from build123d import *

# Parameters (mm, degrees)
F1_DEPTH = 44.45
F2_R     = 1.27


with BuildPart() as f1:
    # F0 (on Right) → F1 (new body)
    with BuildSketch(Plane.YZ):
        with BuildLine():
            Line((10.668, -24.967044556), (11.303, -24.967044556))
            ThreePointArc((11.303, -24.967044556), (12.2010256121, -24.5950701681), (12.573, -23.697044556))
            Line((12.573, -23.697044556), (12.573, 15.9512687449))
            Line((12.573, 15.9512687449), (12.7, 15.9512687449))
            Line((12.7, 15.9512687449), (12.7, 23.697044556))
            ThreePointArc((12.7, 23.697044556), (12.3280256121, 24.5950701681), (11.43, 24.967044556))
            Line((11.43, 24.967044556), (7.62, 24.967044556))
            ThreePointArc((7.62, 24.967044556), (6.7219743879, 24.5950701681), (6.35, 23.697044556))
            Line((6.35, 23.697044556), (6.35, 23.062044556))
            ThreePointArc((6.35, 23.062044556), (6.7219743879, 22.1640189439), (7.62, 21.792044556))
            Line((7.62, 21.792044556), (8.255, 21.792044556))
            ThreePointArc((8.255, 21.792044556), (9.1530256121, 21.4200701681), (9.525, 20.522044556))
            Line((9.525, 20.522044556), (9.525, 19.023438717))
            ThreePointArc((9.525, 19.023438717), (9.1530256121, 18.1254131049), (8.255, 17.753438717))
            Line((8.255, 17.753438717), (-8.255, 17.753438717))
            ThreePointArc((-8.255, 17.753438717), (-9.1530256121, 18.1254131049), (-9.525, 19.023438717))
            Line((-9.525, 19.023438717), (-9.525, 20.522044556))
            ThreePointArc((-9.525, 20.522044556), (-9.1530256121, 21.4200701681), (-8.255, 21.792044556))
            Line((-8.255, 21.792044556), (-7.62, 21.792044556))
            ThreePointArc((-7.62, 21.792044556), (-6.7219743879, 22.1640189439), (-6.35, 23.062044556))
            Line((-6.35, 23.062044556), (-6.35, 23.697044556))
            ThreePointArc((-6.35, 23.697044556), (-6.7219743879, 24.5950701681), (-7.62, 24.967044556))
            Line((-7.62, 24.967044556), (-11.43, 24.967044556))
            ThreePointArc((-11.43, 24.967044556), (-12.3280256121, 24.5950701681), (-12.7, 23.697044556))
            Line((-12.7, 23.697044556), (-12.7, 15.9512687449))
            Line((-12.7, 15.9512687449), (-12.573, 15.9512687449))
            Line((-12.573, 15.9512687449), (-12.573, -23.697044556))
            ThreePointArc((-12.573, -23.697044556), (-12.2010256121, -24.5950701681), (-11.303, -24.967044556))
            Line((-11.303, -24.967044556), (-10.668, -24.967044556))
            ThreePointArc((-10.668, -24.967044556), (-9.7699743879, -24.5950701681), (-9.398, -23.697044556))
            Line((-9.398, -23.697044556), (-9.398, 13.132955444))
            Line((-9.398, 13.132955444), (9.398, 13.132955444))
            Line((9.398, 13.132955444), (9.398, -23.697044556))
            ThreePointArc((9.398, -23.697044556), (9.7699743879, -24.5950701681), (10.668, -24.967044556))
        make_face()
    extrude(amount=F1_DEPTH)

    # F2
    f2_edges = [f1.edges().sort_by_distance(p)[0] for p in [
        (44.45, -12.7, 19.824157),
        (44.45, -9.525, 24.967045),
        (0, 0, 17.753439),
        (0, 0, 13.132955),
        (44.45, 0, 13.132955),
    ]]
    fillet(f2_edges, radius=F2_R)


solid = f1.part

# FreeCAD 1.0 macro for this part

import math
import FreeCAD as App
import Part
import Sketcher
from FreeCAD import Vector
Q = App.Units.Quantity


def edges_at(feature, points):
    """Names of the edges that pass closest to the given points."""
    edges = feature.Shape.Edges
    near = lambda p: min(range(len(edges)), key=lambda i: edges[i].distToShape(Part.Vertex(*p))[0])
    return sorted({f"Edge{near(p) + 1}" for p in points})

doc = App.newDocument("Part")
body = doc.addObject("PartDesign::Body", "Body")

# Sketch on YZ plane
sketch1 = body.newObject("Sketcher::SketchObject", "Sketch")
sketch1.AttachmentSupport = (doc.getObject("YZ_Plane"), [""])
sketch1.MapMode = "FlatFace"
sketch1.addGeometry([
    Part.LineSegment(Vector(10.67, -24.97, 0), Vector(11.3, -24.97, 0)),  # 0
    Part.ArcOfCircle(Part.Circle(Vector(11.3, -23.7, 0), Vector(0, 0, 1), 1.27), math.radians(-90), math.radians(0)),  # 1
    Part.LineSegment(Vector(12.57, -23.7, 0), Vector(12.57, 15.95, 0)),  # 2
    Part.LineSegment(Vector(12.57, 15.95, 0), Vector(12.7, 15.95, 0)),  # 3
    Part.LineSegment(Vector(12.7, 15.95, 0), Vector(12.7, 23.7, 0)),  # 4
    Part.ArcOfCircle(Part.Circle(Vector(11.43, 23.7, 0), Vector(0, 0, 1), 1.27), math.radians(0), math.radians(90)),  # 5
    Part.LineSegment(Vector(11.43, 24.97, 0), Vector(7.62, 24.97, 0)),  # 6
    Part.ArcOfCircle(Part.Circle(Vector(7.62, 23.7, 0), Vector(0, 0, 1), 1.27), math.radians(90), math.radians(180)),  # 7
    Part.LineSegment(Vector(6.35, 23.7, 0), Vector(6.35, 23.06, 0)),  # 8
    Part.ArcOfCircle(Part.Circle(Vector(7.62, 23.06, 0), Vector(0, 0, 1), 1.27), math.radians(180), math.radians(270)),  # 9
    Part.LineSegment(Vector(7.62, 21.79, 0), Vector(8.26, 21.79, 0)),  # 10
    Part.ArcOfCircle(Part.Circle(Vector(8.26, 20.52, 0), Vector(0, 0, 1), 1.27), math.radians(0), math.radians(90)),  # 11
    Part.LineSegment(Vector(9.53, 20.52, 0), Vector(9.53, 19.02, 0)),  # 12
    Part.ArcOfCircle(Part.Circle(Vector(8.26, 19.02, 0), Vector(0, 0, 1), 1.27), math.radians(-90), math.radians(0)),  # 13
    Part.LineSegment(Vector(8.26, 17.75, 0), Vector(-8.26, 17.75, 0)),  # 14
    Part.ArcOfCircle(Part.Circle(Vector(-8.26, 19.02, 0), Vector(0, 0, 1), 1.27), math.radians(180), math.radians(270)),  # 15
    Part.LineSegment(Vector(-9.53, 19.02, 0), Vector(-9.53, 20.52, 0)),  # 16
    Part.ArcOfCircle(Part.Circle(Vector(-8.26, 20.52, 0), Vector(0, 0, 1), 1.27), math.radians(90), math.radians(180)),  # 17
    Part.LineSegment(Vector(-8.26, 21.79, 0), Vector(-7.62, 21.79, 0)),  # 18
    Part.ArcOfCircle(Part.Circle(Vector(-7.62, 23.06, 0), Vector(0, 0, 1), 1.27), math.radians(-90), math.radians(0)),  # 19
    Part.LineSegment(Vector(-6.35, 23.06, 0), Vector(-6.35, 23.7, 0)),  # 20
    Part.ArcOfCircle(Part.Circle(Vector(-7.62, 23.7, 0), Vector(0, 0, 1), 1.27), math.radians(0), math.radians(90)),  # 21
    Part.LineSegment(Vector(-7.62, 24.97, 0), Vector(-11.43, 24.97, 0)),  # 22
    Part.ArcOfCircle(Part.Circle(Vector(-11.43, 23.7, 0), Vector(0, 0, 1), 1.27), math.radians(90), math.radians(180)),  # 23
    Part.LineSegment(Vector(-12.7, 23.7, 0), Vector(-12.7, 15.95, 0)),  # 24
    Part.LineSegment(Vector(-12.7, 15.95, 0), Vector(-12.57, 15.95, 0)),  # 25
    Part.LineSegment(Vector(-12.57, 15.95, 0), Vector(-12.57, -23.7, 0)),  # 26
    Part.ArcOfCircle(Part.Circle(Vector(-11.3, -23.7, 0), Vector(0, 0, 1), 1.27), math.radians(180), math.radians(270)),  # 27
    Part.LineSegment(Vector(-11.3, -24.97, 0), Vector(-10.67, -24.97, 0)),  # 28
    Part.ArcOfCircle(Part.Circle(Vector(-10.67, -23.7, 0), Vector(0, 0, 1), 1.27), math.radians(-90), math.radians(0)),  # 29
    Part.LineSegment(Vector(-9.4, -23.7, 0), Vector(-9.4, 13.13, 0)),  # 30
    Part.LineSegment(Vector(-9.4, 13.13, 0), Vector(9.4, 13.13, 0)),  # 31
    Part.LineSegment(Vector(9.4, 13.13, 0), Vector(9.4, -23.7, 0)),  # 32
    Part.ArcOfCircle(Part.Circle(Vector(10.67, -23.7, 0), Vector(0, 0, 1), 1.27), math.radians(180), math.radians(270)),  # 33
], False)
sketch1.addConstraint([
    Sketcher.Constraint("Tangent", 0, 2, 1, 1),
    Sketcher.Constraint("Tangent", 1, 2, 2, 1),
    Sketcher.Constraint("Coincident", 2, 2, 3, 1),
    Sketcher.Constraint("Coincident", 3, 2, 4, 1),
    Sketcher.Constraint("Tangent", 4, 2, 5, 1),
    Sketcher.Constraint("Tangent", 5, 2, 6, 1),
    Sketcher.Constraint("Tangent", 6, 2, 7, 1),
    Sketcher.Constraint("Tangent", 7, 2, 8, 1),
    Sketcher.Constraint("Tangent", 8, 2, 9, 1),
    Sketcher.Constraint("Tangent", 9, 2, 10, 1),
    Sketcher.Constraint("Tangent", 10, 2, 11, 2),
    Sketcher.Constraint("Tangent", 11, 1, 12, 1),
    Sketcher.Constraint("Tangent", 12, 2, 13, 2),
    Sketcher.Constraint("Tangent", 13, 1, 14, 1),
    Sketcher.Constraint("Tangent", 14, 2, 15, 2),
    Sketcher.Constraint("Tangent", 15, 1, 16, 1),
    Sketcher.Constraint("Tangent", 16, 2, 17, 2),
    Sketcher.Constraint("Tangent", 17, 1, 18, 1),
    Sketcher.Constraint("Tangent", 18, 2, 19, 1),
    Sketcher.Constraint("Tangent", 19, 2, 20, 1),
    Sketcher.Constraint("Tangent", 20, 2, 21, 1),
    Sketcher.Constraint("Tangent", 21, 2, 22, 1),
    Sketcher.Constraint("Tangent", 22, 2, 23, 1),
    Sketcher.Constraint("Tangent", 23, 2, 24, 1),
    Sketcher.Constraint("Coincident", 24, 2, 25, 1),
    Sketcher.Constraint("Coincident", 25, 2, 26, 1),
    Sketcher.Constraint("Tangent", 26, 2, 27, 1),
    Sketcher.Constraint("Tangent", 27, 2, 28, 1),
    Sketcher.Constraint("Tangent", 28, 2, 29, 1),
    Sketcher.Constraint("Tangent", 29, 2, 30, 1),
    Sketcher.Constraint("Coincident", 30, 2, 31, 1),
    Sketcher.Constraint("Coincident", 31, 2, 32, 1),
    Sketcher.Constraint("Tangent", 32, 2, 33, 1),
    Sketcher.Constraint("Tangent", 33, 2, 0, 1),
    Sketcher.Constraint("Horizontal", 0),
    Sketcher.Constraint("Vertical", 2),
    Sketcher.Constraint("Horizontal", 3),
    Sketcher.Constraint("Vertical", 4),
    Sketcher.Constraint("Horizontal", 6),
    Sketcher.Constraint("Vertical", 8),
    Sketcher.Constraint("Horizontal", 10),
    Sketcher.Constraint("Vertical", 12),
    Sketcher.Constraint("Horizontal", 14),
    Sketcher.Constraint("Vertical", 16),
    Sketcher.Constraint("Horizontal", 18),
    Sketcher.Constraint("Vertical", 20),
    Sketcher.Constraint("Horizontal", 22),
    Sketcher.Constraint("Vertical", 24),
    Sketcher.Constraint("Horizontal", 25),
    Sketcher.Constraint("Vertical", 26),
    Sketcher.Constraint("Horizontal", 28),
    Sketcher.Constraint("Vertical", 30),
    Sketcher.Constraint("Horizontal", 31),
    Sketcher.Constraint("Vertical", 32),
    Sketcher.Constraint("Equal", 1, 5),
    Sketcher.Constraint("Equal", 5, 7),
    Sketcher.Constraint("Equal", 7, 9),
    Sketcher.Constraint("Equal", 9, 11),
    Sketcher.Constraint("Equal", 11, 13),
    Sketcher.Constraint("Equal", 13, 15),
    Sketcher.Constraint("Equal", 15, 17),
    Sketcher.Constraint("Equal", 17, 19),
    Sketcher.Constraint("Equal", 19, 21),
    Sketcher.Constraint("Equal", 21, 23),
    Sketcher.Constraint("Equal", 23, 27),
    Sketcher.Constraint("Equal", 27, 29),
    Sketcher.Constraint("Equal", 29, 33),
    Sketcher.Constraint("Symmetric", 11, 3, 17, 3, -2),
    Sketcher.Constraint("Symmetric", 7, 3, 21, 3, -2),
    Sketcher.Constraint("Symmetric", 1, 3, 27, 3, -2),
    Sketcher.Constraint("Symmetric", 3, 2, 24, 2, -2),
    Sketcher.Constraint("Equal", 0, 10),
    Sketcher.Constraint("Equal", 18, 28),
    Sketcher.Constraint("Equal", 28, 8),
    Sketcher.Constraint("Radius", 1, Q("0.05 in")),
    Sketcher.Constraint("DistanceX", 6, 2, 6, 1, Q("0.15 in")),
    Sketcher.Constraint("DistanceX", 14, 2, 14, 1, Q("0.65 in")),
    Sketcher.Constraint("DistanceX", 31, 1, 31, 2, Q("0.74 in")),
    Sketcher.Constraint("DistanceY", 30, 1, 30, 2, Q("1.45 in")),
    Sketcher.Constraint("DistanceX", -1, 1, 7, 3, Q("0.3 in")),
    Sketcher.Constraint("DistanceY", 2, 1, 2, 2, Q("39.648313 mm")),
    Sketcher.Constraint("DistanceY", 4, 1, 4, 2, Q("7.745776 mm")),
    Sketcher.Constraint("DistanceY", 12, 2, 12, 1, Q("1.498606 mm")),
    Sketcher.Constraint("DistanceY", -1, 1, 13, 3, Q("19.023439 mm")),
])
pad1 = body.newObject("PartDesign::Pad", "Pad")
pad1.Profile = sketch1
pad1.Length = Q("1.75 in")
doc.recompute()

fillet = body.newObject("PartDesign::Fillet", "Fillet")
fillet.Base = (pad1, edges_at(pad1, [
    (44.45, -12.7, 19.824),
    (44.45, -9.525, 24.967),
    (0, 0, 17.753),
    (0, 0, 13.133),
    (44.45, 0, 13.133),
]))
fillet.Radius = Q("0.05 in")

doc.recompute()
